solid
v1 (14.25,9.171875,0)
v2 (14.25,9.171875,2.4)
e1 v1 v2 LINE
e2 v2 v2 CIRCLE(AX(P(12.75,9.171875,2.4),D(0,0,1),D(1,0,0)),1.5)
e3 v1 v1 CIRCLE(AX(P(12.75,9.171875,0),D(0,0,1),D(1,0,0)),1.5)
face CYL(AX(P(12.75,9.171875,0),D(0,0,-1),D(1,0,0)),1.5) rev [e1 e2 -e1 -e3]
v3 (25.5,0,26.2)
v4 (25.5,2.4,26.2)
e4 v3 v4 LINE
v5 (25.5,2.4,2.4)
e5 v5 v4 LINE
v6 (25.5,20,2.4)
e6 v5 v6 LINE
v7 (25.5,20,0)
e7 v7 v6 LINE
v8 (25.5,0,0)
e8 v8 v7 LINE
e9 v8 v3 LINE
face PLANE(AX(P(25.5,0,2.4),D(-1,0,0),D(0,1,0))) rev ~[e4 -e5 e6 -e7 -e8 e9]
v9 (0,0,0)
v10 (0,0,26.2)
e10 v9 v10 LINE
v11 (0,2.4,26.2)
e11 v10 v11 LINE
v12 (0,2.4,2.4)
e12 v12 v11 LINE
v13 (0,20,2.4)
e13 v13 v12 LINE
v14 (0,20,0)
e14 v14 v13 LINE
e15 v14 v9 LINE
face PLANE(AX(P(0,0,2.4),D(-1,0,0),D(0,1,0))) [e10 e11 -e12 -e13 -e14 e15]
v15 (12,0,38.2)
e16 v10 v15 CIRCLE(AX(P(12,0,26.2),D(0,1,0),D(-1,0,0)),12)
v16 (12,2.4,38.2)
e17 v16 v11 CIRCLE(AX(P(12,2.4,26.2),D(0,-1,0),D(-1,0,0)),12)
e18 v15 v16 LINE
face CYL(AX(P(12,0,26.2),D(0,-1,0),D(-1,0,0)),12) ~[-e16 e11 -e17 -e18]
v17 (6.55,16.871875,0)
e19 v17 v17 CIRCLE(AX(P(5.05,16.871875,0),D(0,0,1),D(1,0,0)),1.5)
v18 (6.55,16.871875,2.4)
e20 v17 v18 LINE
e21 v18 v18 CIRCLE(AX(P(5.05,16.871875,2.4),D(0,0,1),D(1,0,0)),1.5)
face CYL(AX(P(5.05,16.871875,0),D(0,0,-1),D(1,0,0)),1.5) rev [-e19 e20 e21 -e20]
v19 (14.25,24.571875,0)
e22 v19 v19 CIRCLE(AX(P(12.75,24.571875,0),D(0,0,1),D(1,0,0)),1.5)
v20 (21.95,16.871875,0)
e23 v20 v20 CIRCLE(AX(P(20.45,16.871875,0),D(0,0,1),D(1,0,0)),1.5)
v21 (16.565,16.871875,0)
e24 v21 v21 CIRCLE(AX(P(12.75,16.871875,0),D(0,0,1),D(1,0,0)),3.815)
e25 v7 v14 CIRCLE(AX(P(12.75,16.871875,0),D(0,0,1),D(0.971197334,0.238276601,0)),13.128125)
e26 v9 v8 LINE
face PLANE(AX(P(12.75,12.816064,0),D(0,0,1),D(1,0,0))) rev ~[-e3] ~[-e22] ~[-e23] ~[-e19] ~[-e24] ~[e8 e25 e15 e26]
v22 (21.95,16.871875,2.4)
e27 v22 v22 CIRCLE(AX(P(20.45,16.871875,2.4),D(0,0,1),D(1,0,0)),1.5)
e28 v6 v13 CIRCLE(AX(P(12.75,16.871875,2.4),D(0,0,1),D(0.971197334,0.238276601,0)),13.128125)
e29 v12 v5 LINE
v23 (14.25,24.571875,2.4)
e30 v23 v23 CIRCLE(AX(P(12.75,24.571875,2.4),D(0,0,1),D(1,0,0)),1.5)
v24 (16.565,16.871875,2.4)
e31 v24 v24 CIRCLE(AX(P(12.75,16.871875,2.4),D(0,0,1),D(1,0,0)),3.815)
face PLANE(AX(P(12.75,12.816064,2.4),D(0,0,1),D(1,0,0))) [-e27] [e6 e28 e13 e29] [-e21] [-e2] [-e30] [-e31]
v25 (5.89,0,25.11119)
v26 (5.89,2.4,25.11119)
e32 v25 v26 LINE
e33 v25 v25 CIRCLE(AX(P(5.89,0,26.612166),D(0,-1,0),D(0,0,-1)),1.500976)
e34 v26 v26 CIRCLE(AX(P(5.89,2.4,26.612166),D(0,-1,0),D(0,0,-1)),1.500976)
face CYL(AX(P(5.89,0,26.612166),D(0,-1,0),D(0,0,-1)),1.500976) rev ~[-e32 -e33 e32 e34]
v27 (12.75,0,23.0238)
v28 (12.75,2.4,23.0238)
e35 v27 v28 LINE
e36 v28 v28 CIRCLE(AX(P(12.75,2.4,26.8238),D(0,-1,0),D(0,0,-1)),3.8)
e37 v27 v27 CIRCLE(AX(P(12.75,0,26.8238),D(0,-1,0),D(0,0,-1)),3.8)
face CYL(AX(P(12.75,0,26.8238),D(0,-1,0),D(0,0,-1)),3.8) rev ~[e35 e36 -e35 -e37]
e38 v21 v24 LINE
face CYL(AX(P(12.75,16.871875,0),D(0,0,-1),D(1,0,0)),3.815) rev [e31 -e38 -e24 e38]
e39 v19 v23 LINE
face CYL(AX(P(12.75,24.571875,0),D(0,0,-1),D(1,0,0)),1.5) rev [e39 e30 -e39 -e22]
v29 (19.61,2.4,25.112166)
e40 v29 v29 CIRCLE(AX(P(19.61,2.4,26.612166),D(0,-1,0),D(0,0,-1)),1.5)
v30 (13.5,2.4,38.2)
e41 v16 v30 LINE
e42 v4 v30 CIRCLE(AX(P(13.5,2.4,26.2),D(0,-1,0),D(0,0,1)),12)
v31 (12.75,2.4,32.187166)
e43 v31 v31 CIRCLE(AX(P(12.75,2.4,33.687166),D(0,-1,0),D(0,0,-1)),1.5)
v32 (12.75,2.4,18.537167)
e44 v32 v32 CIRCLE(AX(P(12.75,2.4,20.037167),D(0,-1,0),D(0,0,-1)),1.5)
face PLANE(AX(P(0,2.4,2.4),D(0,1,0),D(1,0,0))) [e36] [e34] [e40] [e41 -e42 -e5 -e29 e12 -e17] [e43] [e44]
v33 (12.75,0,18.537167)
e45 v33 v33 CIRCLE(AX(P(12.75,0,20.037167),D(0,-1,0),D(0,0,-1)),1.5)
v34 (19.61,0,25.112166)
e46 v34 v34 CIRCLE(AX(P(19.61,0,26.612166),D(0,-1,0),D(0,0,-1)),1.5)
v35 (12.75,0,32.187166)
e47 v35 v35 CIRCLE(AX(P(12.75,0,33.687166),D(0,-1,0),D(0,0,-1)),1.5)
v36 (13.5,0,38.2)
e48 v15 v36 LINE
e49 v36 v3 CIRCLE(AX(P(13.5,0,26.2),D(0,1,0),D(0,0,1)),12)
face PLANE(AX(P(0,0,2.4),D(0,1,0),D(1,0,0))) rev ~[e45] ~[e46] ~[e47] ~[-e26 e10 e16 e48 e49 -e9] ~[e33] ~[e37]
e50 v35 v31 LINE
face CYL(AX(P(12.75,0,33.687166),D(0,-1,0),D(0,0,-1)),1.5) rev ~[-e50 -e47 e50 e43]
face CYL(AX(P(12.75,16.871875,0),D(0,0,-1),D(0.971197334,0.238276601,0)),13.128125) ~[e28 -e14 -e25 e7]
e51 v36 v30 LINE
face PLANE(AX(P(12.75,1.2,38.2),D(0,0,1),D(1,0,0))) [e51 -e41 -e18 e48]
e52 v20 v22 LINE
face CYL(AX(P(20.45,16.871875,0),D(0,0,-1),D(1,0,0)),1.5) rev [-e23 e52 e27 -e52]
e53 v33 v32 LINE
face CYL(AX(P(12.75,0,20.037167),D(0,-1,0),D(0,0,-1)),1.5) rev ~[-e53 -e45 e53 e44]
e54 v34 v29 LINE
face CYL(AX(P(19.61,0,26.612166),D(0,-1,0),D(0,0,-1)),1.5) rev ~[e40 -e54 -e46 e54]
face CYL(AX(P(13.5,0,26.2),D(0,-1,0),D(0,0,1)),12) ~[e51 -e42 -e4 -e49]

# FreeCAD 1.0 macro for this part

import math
import FreeCAD as App
import Part
import Sketcher
from FreeCAD import Vector


def add_polygon(sketch, points):
    """Adds a closed chain of lines whose ends are joined by coincident constraints."""
    first, n = sketch.GeometryCount, len(points)
    for a, b in zip(points, points[1:] + points[:1]):
        sketch.addGeometry(Part.LineSegment(App.Vector(*a, 0), App.Vector(*b, 0)), False)
    for i in range(n):
        sketch.addConstraint(Sketcher.Constraint("Coincident", first + i, 2, first + (i + 1) % n, 1))

doc = App.newDocument("Part")
body = doc.addObject("PartDesign::Body", "Body")

sketch1 = body.newObject("Sketcher::SketchObject", "Sketch")
sketch1.AttachmentSupport = (doc.getObject("XY_Plane"), [""])
sketch1.MapMode = "FlatFace"
sketch1.addGeometry([
    Part.LineSegment(Vector(0, 0, 0), Vector(25.5, 0, 0)),
    Part.LineSegment(Vector(25.5, 0, 0), Vector(25.5, 20, 0)),
    Part.ArcOfCircle(Part.Circle(Vector(12.8, 16.9, 0), Vector(0, 0, 1), 13.1), math.radians(14), math.radians(166)),
    Part.LineSegment(Vector(0, 20, 0), Vector(0, 0, 0)),
    Part.Circle(Vector(12.8, 9.2, 0), Vector(0, 0, 1), 1.5),
    Part.Circle(Vector(5, 16.9, 0), Vector(0, 0, 1), 1.5),
    Part.Circle(Vector(12.8, 16.9, 0), Vector(0, 0, 1), 3.8),
    Part.Circle(Vector(20.4, 16.9, 0), Vector(0, 0, 1), 1.5),
    Part.Circle(Vector(12.8, 24.6, 0), Vector(0, 0, 1), 1.5),
], False)
sketch1.addConstraint([
    Sketcher.Constraint("Coincident", 0, 2, 1, 1),
    Sketcher.Constraint("Coincident", 1, 2, 2, 1),
    Sketcher.Constraint("Coincident", 2, 2, 3, 1),
    Sketcher.Constraint("Coincident", 3, 2, 0, 1),
    Sketcher.Constraint("Horizontal", 0),
    Sketcher.Constraint("Vertical", 1),
    Sketcher.Constraint("Vertical", 3),
    Sketcher.Constraint("Coincident", 3, 2, -1, 1),
    Sketcher.Constraint("Coincident", 6, 3, 2, 3),
    Sketcher.Constraint("Equal", 4, 5),
    Sketcher.Constraint("Equal", 5, 7),
    Sketcher.Constraint("Equal", 7, 8),
    Sketcher.Constraint("Horizontal", 2, 3, 5, 3),
    Sketcher.Constraint("Horizontal", 6, 3, 7, 3),
    Sketcher.Constraint("Horizontal", 1, 2, 2, 2),
    Sketcher.Constraint("Vertical", 2, 3, 4, 3),
    Sketcher.Constraint("Vertical", 6, 3, 8, 3),
    Sketcher.Constraint("Diameter", 4, 3.0),
    Sketcher.Constraint("Diameter", 6, 7.63),
    Sketcher.Constraint("DistanceY", 1, 1, 1, 2, 20.0),
    Sketcher.Constraint("DistanceX", 0, 1, 0, 2, 25.5),
    Sketcher.Constraint("DistanceY", 4, 3, 2, 3, 7.7),
    Sketcher.Constraint("DistanceX", 5, 3, 2, 3, 7.7),
    Sketcher.Constraint("DistanceX", 2, 3, 7, 3, 7.7),
    Sketcher.Constraint("DistanceY", 2, 3, 8, 3, 7.7),
    Sketcher.Constraint("Radius", 2, 13.128125),
])
pad1 = body.newObject("PartDesign::Pad", "Pad")
pad1.Profile = sketch1
pad1.Length = 2.4

sketch2 = body.newObject("Sketcher::SketchObject", "Sketch001")
sketch2.AttachmentSupport = (doc.getObject("XY_Plane"), [""])
sketch2.MapMode = "FlatFace"
sketch2.AttachmentOffset = App.Placement(Vector(0, 0, 2.4), App.Rotation())
add_polygon(sketch2, [(0, 2.4), (0, 0), (25.5, 0), (25.5, 2.4)])
sketch2.addConstraint([
    Sketcher.Constraint("Vertical", 0),
    Sketcher.Constraint("Horizontal", 1),
    Sketcher.Constraint("Vertical", 2),
    Sketcher.Constraint("Horizontal", 3),
    Sketcher.Constraint("Coincident", 0, 2, -1, 1),
    Sketcher.Constraint("DistanceX", 1, 1, 1, 2, 25.5),
    Sketcher.Constraint("DistanceY", 0, 2, 0, 1, 2.4),
])
pad2 = body.newObject("PartDesign::Pad", "Pad001")
pad2.Profile = sketch2
pad2.Length = 35.8

sketch3 = body.newObject("Sketcher::SketchObject", "Sketch002")
sketch3.AttachmentSupport = (doc.getObject("XZ_Plane"), [""])
sketch3.MapMode = "FlatFace"
sketch3.addGeometry([
    Part.ArcOfCircle(Part.Circle(Vector(12, 26, 0), Vector(0, 0, 1), 12), math.radians(90), math.radians(180)),
    Part.LineSegment(Vector(12, 38, 0), Vector(0, 38, 0)),
    Part.LineSegment(Vector(0, 38, 0), Vector(0, 26, 0)),
    Part.LineSegment(Vector(26, 38, 0), Vector(14, 38, 0)),
    Part.ArcOfCircle(Part.Circle(Vector(13, 26, 0), Vector(0, 0, 1), 12), math.radians(0), math.radians(90)),
    Part.LineSegment(Vector(26, 26, 0), Vector(26, 38, 0)),
], False)
sketch3.addConstraint([
    Sketcher.Constraint("Tangent", 0, 1, 1, 1),
    Sketcher.Constraint("Coincident", 1, 2, 2, 1),
    Sketcher.Constraint("Tangent", 2, 2, 0, 2),
    Sketcher.Constraint("Tangent", 3, 2, 4, 2),
    Sketcher.Constraint("Tangent", 4, 1, 5, 1),
    Sketcher.Constraint("Coincident", 5, 2, 3, 1),
    Sketcher.Constraint("Horizontal", 1),
    Sketcher.Constraint("Vertical", 2),
    Sketcher.Constraint("Horizontal", 3),
    Sketcher.Constraint("Vertical", 5),
    Sketcher.Constraint("Equal", 0, 4),
    Sketcher.Constraint("PointOnObject", 1, 2, -2),
    Sketcher.Constraint("Horizontal", 0, 3, 4, 3),
    Sketcher.Constraint("Radius", 0, 12.0),
    Sketcher.Constraint("DistanceY", -1, 1, 0, 3, 26.2),
    Sketcher.Constraint("DistanceX", -1, 1, 4, 3, 13.5),
])
pocket1 = body.newObject("PartDesign::Pocket", "Pocket")
pocket1.Profile = sketch3
pocket1.Length = 35.8

sketch4 = body.newObject("Sketcher::SketchObject", "Sketch003")
sketch4.AttachmentSupport = (doc.getObject("XZ_Plane"), [""])
sketch4.MapMode = "FlatFace"
sketch4.addGeometry([
    Part.Circle(Vector(12.8, 26.8, 0), Vector(0, 0, 1), 3.8),
    Part.Circle(Vector(5.9, 26.6, 0), Vector(0, 0, 1), 1.5),
    Part.Circle(Vector(19.6, 26.6, 0), Vector(0, 0, 1), 1.5),
    Part.Circle(Vector(12.8, 33.7, 0), Vector(0, 0, 1), 1.5),
    Part.Circle(Vector(12.8, 20, 0), Vector(0, 0, 1), 1.5),
], False)
sketch4.addConstraint([
    Sketcher.Constraint("Equal", 2, 3),
    Sketcher.Constraint("Equal", 3, 4),
    Sketcher.Constraint("Horizontal", 1, 3, 2, 3),
    Sketcher.Constraint("Vertical", 0, 3, 3, 3),
    Sketcher.Constraint("Vertical", 3, 3, 4, 3),
    Sketcher.Constraint("Diameter", 2, 3.0),
    Sketcher.Constraint("Diameter", 0, 7.6),
    Sketcher.Constraint("DistanceX", -1, 1, 0, 3, 12.75),
    Sketcher.Constraint("DistanceX", -1, 1, 1, 3, 5.89),
    Sketcher.Constraint("DistanceX", -1, 1, 2, 3, 19.61),
    Sketcher.Constraint("DistanceY", 4, 3, 3, 3, 13.649998),
    Sketcher.Constraint("Diameter", 1, 3.001952),
    Sketcher.Constraint("DistanceY", 1, 3, 3, 3, 7.075),
    Sketcher.Constraint("DistanceY", -1, 1, 0, 3, 26.8238),
    Sketcher.Constraint("DistanceY", -1, 1, 1, 3, 26.612166),
])
pocket2 = body.newObject("PartDesign::Pocket", "Pocket001")
pocket2.Profile = sketch4
pocket2.Length = 35.8

doc.recompute()
